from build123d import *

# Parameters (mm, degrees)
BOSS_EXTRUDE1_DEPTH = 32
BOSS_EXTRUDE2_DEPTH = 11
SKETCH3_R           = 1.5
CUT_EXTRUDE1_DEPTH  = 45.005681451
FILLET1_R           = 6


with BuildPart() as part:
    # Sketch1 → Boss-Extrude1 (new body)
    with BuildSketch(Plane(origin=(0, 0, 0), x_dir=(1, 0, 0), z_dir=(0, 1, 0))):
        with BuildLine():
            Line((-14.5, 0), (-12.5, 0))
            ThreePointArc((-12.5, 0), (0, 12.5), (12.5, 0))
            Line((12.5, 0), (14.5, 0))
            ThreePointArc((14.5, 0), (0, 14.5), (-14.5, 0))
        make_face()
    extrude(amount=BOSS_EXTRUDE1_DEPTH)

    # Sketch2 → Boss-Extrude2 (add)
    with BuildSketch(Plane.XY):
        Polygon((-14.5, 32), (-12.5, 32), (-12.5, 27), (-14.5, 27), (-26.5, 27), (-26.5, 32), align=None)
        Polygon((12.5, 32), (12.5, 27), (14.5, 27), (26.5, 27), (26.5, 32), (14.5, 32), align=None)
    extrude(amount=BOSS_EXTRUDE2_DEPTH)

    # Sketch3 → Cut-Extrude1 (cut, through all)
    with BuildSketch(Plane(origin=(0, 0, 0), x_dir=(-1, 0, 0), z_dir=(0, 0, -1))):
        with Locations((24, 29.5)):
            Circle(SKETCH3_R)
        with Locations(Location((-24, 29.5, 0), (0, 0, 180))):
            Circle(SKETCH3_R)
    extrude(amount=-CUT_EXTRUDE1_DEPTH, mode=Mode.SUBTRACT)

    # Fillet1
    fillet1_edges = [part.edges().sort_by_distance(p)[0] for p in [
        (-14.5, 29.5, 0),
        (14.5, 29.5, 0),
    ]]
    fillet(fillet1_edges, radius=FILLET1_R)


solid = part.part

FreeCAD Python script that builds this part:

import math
import FreeCAD as App
import Part
import Sketcher
from FreeCAD import Vector


def edges_at(feature, points):
    """Names of the edges that pass closest to the given points."""
    edges = feature.Shape.Edges
    near = lambda p: min(range(len(edges)), key=lambda i: edges[i].distToShape(Part.Vertex(*p))[0])
    return sorted({f"Edge{near(p) + 1}" for p in points})

doc = App.newDocument("Part")
body = doc.addObject("PartDesign::Body", "Body")

# Sketch on XZ plane
sketch1 = doc.addObject("Sketcher::SketchObject", "Sketch")
body.addObject(sketch1)
sketch1.AttachmentSupport = (doc.XZ_Plane, [""])
sketch1.MapMode = "FlatFace"
sketch1.addGeometry(Part.LineSegment(Vector(-14.5, 0, 0), Vector(-12.5, 0, 0)), False)
sketch1.addGeometry(Part.ArcOfCircle(Part.Circle(Vector(0, 0, 0), Vector(0, 0, 1), 12.5), math.radians(180), math.radians(360)), False)
sketch1.addGeometry(Part.LineSegment(Vector(12.5, 0, 0), Vector(14.5, 0, 0)), False)
sketch1.addGeometry(Part.ArcOfCircle(Part.Circle(Vector(0, 0, 0), Vector(0, 0, 1), 14.5), math.radians(180), math.radians(360)), False)
sketch1.addConstraint(Sketcher.Constraint("Coincident", 0, 2, 1, 1))
sketch1.addConstraint(Sketcher.Constraint("Coincident", 1, 2, 2, 1))
sketch1.addConstraint(Sketcher.Constraint("Coincident", 2, 2, 3, 2))
sketch1.addConstraint(Sketcher.Constraint("Coincident", 3, 1, 0, 1))
sketch1.addConstraint(Sketcher.Constraint("Horizontal", 0))
sketch1.addConstraint(Sketcher.Constraint("Horizontal", 2))
sketch1.addConstraint(Sketcher.Constraint("Coincident", 1, 3, -1, 1))
sketch1.addConstraint(Sketcher.Constraint("Coincident", 3, 3, -1, 1))
sketch1.addConstraint(Sketcher.Constraint("PointOnObject", 0, 2, -1))
sketch1.addConstraint(Sketcher.Constraint("PointOnObject", 1, 2, -1))
sketch1.addConstraint(Sketcher.Constraint("Radius", 1, 12.5))
sketch1.addConstraint(Sketcher.Constraint("Radius", 3, 14.5))
pad1 = doc.addObject("PartDesign::Pad", "Pad")
body.addObject(pad1)
pad1.Profile = sketch1
pad1.Length = 32
pad1.Reversed = True

# Sketch on XY plane
sketch2 = doc.addObject("Sketcher::SketchObject", "Sketch001")
body.addObject(sketch2)
sketch2.AttachmentSupport = (doc.XY_Plane, [""])
sketch2.MapMode = "FlatFace"
sketch2.addGeometry(Part.LineSegment(Vector(-12.5, 32, 0), Vector(-26.5, 32, 0)), False)
sketch2.addGeometry(Part.LineSegment(Vector(-26.5, 32, 0), Vector(-26.5, 27, 0)), False)
sketch2.addGeometry(Part.LineSegment(Vector(-26.5, 27, 0), Vector(-12.5, 27, 0)), False)
sketch2.addGeometry(Part.LineSegment(Vector(-12.5, 27, 0), Vector(-12.5, 32, 0)), False)
sketch2.addGeometry(Part.LineSegment(Vector(12.5, 32, 0), Vector(12.5, 27, 0)), False)
sketch2.addGeometry(Part.LineSegment(Vector(12.5, 27, 0), Vector(26.5, 27, 0)), False)
sketch2.addGeometry(Part.LineSegment(Vector(26.5, 27, 0), Vector(26.5, 32, 0)), False)
sketch2.addGeometry(Part.LineSegment(Vector(26.5, 32, 0), Vector(12.5, 32, 0)), False)
sketch2.addConstraint(Sketcher.Constraint("Coincident", 0, 2, 1, 1))
sketch2.addConstraint(Sketcher.Constraint("Coincident", 1, 2, 2, 1))
sketch2.addConstraint(Sketcher.Constraint("Coincident", 2, 2, 3, 1))
sketch2.addConstraint(Sketcher.Constraint("Coincident", 3, 2, 0, 1))
sketch2.addConstraint(Sketcher.Constraint("Coincident", 4, 2, 5, 1))
sketch2.addConstraint(Sketcher.Constraint("Coincident", 5, 2, 6, 1))
sketch2.addConstraint(Sketcher.Constraint("Coincident", 6, 2, 7, 1))
sketch2.addConstraint(Sketcher.Constraint("Coincident", 7, 2, 4, 1))
sketch2.addConstraint(Sketcher.Constraint("Horizontal", 0))
sketch2.addConstraint(Sketcher.Constraint("Vertical", 1))
sketch2.addConstraint(Sketcher.Constraint("Horizontal", 2))
sketch2.addConstraint(Sketcher.Constraint("Vertical", 3))
sketch2.addConstraint(Sketcher.Constraint("Vertical", 4))
sketch2.addConstraint(Sketcher.Constraint("Horizontal", 5))
sketch2.addConstraint(Sketcher.Constraint("Vertical", 6))
sketch2.addConstraint(Sketcher.Constraint("Horizontal", 7))
sketch2.addConstraint(Sketcher.Constraint("Symmetric", 2, 2, 4, 2, -2))
sketch2.addConstraint(Sketcher.Constraint("Symmetric", 0, 2, 6, 2, -2))
sketch2.addConstraint(Sketcher.Constraint("DistanceX", 0, 2, 0, 1, 14.0))
sketch2.addConstraint(Sketcher.Constraint("DistanceY", 1, 2, 1, 1, 5.0))
sketch2.addConstraint(Sketcher.Constraint("DistanceY", -1, 1, 0, 2, 32.0))
sketch2.addConstraint(Sketcher.Constraint("DistanceX", 2, 2, 4, 2, 25.0))
pad2 = doc.addObject("PartDesign::Pad", "Pad001")
body.addObject(pad2)
pad2.Profile = sketch2
pad2.Length = 11

# Sketch on XY plane
sketch3 = doc.addObject("Sketcher::SketchObject", "Sketch002")
body.addObject(sketch3)
sketch3.AttachmentSupport = (doc.XY_Plane, [""])
sketch3.MapMode = "FlatFace"
sketch3.addGeometry(Part.Circle(Vector(-24, 29.5, 0), Vector(0, 0, 1), 1.5), False)
sketch3.addGeometry(Part.Circle(Vector(24, 29.5, 0), Vector(0, 0, 1), 1.5), False)
sketch3.addConstraint(Sketcher.Constraint("Equal", 0, 1))
sketch3.addConstraint(Sketcher.Constraint("Symmetric", 0, 3, 1, 3, -2))
sketch3.addConstraint(Sketcher.Constraint("Diameter", 0, 3.0))
sketch3.addConstraint(Sketcher.Constraint("DistanceX", 0, 3, -1, 1, 24.0))
sketch3.addConstraint(Sketcher.Constraint("DistanceY", -1, 1, 0, 3, 29.5))
pocket1 = doc.addObject("PartDesign::Pocket", "Pocket")
body.addObject(pocket1)
pocket1.Profile = sketch3
pocket1.Type = "ThroughAll"
pocket1.Reversed = True
doc.recompute()

fillet = doc.addObject("PartDesign::Fillet", "Fillet")
body.addObject(fillet)
fillet.Base = (pocket1, edges_at(pocket1, [(-14.5, 29.5, 0), (14.5, 29.5, 0)]))
fillet.Radius = 6

doc.recompute()
